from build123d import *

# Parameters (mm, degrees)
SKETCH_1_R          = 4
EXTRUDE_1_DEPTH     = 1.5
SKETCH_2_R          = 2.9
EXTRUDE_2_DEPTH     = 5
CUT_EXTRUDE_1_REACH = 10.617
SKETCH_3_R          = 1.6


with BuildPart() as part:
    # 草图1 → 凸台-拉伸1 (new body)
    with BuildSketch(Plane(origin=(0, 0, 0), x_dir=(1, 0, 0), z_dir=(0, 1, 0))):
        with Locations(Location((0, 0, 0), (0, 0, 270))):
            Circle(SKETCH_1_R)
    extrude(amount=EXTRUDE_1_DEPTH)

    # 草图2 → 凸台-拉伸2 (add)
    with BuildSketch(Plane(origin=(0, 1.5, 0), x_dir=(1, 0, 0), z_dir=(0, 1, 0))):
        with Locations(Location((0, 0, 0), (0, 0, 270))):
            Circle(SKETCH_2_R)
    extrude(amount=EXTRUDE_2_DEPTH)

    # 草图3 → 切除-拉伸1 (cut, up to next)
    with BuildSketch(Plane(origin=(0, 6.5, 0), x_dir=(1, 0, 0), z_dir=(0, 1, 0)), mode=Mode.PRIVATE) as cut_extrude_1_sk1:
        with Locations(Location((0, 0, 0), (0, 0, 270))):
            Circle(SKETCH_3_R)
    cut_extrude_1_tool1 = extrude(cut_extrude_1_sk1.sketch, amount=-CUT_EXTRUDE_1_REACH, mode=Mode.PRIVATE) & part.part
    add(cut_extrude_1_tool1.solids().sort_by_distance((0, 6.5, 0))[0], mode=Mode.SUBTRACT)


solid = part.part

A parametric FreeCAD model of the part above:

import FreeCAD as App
import Part
import Sketcher

doc = App.newDocument("Part")
body = doc.addObject("PartDesign::Body", "Body")

sketch1 = doc.addObject("Sketcher::SketchObject", "Sketch")
body.addObject(sketch1)
sketch1.AttachmentSupport = (doc.XZ_Plane, [""])
sketch1.MapMode = "FlatFace"
sketch1.addGeometry(Part.Circle(App.Vector(0, 0, 0), App.Vector(0, 0, 1), 4), False)
sketch1.addConstraint([
    Sketcher.Constraint("Coincident", 0, 3, -1, 1),
    Sketcher.Constraint("Diameter", 0, 8.0),
])
pad1 = doc.addObject("PartDesign::Pad", "Pad")
body.addObject(pad1)
pad1.Profile = sketch1
pad1.Length = 1.5
pad1.Reversed = True

sketch2 = doc.addObject("Sketcher::SketchObject", "Sketch001")
body.addObject(sketch2)
sketch2.AttachmentSupport = (doc.XZ_Plane, [""])
sketch2.MapMode = "FlatFace"
sketch2.AttachmentOffset = App.Placement(App.Vector(0, 0, -1.5), App.Rotation())
sketch2.addGeometry(Part.Circle(App.Vector(0, 0, 0), App.Vector(0, 0, 1), 2.9), False)
sketch2.addConstraint([
    Sketcher.Constraint("Coincident", 0, 3, -1, 1),
    Sketcher.Constraint("Diameter", 0, 5.8),
])
pad2 = doc.addObject("PartDesign::Pad", "Pad001")
body.addObject(pad2)
pad2.Profile = sketch2
pad2.Length = 5
pad2.Reversed = True

sketch3 = doc.addObject("Sketcher::SketchObject", "Sketch002")
body.addObject(sketch3)
sketch3.AttachmentSupport = (doc.XZ_Plane, [""])
sketch3.MapMode = "FlatFace"
sketch3.AttachmentOffset = App.Placement(App.Vector(0, 0, -6.5), App.Rotation())
sketch3.addGeometry(Part.Circle(App.Vector(0, 0, 0), App.Vector(0, 0, 1), 1.6), False)
sketch3.addConstraint([
    Sketcher.Constraint("Coincident", 0, 3, -1, 1),
    Sketcher.Constraint("Diameter", 0, 3.2),
])
pocket1 = doc.addObject("PartDesign::Pocket", "Pocket")
body.addObject(pocket1)
pocket1.Profile = sketch3
pocket1.Type = "UpToFirst"
pocket1.Reversed = True

doc.recompute()
